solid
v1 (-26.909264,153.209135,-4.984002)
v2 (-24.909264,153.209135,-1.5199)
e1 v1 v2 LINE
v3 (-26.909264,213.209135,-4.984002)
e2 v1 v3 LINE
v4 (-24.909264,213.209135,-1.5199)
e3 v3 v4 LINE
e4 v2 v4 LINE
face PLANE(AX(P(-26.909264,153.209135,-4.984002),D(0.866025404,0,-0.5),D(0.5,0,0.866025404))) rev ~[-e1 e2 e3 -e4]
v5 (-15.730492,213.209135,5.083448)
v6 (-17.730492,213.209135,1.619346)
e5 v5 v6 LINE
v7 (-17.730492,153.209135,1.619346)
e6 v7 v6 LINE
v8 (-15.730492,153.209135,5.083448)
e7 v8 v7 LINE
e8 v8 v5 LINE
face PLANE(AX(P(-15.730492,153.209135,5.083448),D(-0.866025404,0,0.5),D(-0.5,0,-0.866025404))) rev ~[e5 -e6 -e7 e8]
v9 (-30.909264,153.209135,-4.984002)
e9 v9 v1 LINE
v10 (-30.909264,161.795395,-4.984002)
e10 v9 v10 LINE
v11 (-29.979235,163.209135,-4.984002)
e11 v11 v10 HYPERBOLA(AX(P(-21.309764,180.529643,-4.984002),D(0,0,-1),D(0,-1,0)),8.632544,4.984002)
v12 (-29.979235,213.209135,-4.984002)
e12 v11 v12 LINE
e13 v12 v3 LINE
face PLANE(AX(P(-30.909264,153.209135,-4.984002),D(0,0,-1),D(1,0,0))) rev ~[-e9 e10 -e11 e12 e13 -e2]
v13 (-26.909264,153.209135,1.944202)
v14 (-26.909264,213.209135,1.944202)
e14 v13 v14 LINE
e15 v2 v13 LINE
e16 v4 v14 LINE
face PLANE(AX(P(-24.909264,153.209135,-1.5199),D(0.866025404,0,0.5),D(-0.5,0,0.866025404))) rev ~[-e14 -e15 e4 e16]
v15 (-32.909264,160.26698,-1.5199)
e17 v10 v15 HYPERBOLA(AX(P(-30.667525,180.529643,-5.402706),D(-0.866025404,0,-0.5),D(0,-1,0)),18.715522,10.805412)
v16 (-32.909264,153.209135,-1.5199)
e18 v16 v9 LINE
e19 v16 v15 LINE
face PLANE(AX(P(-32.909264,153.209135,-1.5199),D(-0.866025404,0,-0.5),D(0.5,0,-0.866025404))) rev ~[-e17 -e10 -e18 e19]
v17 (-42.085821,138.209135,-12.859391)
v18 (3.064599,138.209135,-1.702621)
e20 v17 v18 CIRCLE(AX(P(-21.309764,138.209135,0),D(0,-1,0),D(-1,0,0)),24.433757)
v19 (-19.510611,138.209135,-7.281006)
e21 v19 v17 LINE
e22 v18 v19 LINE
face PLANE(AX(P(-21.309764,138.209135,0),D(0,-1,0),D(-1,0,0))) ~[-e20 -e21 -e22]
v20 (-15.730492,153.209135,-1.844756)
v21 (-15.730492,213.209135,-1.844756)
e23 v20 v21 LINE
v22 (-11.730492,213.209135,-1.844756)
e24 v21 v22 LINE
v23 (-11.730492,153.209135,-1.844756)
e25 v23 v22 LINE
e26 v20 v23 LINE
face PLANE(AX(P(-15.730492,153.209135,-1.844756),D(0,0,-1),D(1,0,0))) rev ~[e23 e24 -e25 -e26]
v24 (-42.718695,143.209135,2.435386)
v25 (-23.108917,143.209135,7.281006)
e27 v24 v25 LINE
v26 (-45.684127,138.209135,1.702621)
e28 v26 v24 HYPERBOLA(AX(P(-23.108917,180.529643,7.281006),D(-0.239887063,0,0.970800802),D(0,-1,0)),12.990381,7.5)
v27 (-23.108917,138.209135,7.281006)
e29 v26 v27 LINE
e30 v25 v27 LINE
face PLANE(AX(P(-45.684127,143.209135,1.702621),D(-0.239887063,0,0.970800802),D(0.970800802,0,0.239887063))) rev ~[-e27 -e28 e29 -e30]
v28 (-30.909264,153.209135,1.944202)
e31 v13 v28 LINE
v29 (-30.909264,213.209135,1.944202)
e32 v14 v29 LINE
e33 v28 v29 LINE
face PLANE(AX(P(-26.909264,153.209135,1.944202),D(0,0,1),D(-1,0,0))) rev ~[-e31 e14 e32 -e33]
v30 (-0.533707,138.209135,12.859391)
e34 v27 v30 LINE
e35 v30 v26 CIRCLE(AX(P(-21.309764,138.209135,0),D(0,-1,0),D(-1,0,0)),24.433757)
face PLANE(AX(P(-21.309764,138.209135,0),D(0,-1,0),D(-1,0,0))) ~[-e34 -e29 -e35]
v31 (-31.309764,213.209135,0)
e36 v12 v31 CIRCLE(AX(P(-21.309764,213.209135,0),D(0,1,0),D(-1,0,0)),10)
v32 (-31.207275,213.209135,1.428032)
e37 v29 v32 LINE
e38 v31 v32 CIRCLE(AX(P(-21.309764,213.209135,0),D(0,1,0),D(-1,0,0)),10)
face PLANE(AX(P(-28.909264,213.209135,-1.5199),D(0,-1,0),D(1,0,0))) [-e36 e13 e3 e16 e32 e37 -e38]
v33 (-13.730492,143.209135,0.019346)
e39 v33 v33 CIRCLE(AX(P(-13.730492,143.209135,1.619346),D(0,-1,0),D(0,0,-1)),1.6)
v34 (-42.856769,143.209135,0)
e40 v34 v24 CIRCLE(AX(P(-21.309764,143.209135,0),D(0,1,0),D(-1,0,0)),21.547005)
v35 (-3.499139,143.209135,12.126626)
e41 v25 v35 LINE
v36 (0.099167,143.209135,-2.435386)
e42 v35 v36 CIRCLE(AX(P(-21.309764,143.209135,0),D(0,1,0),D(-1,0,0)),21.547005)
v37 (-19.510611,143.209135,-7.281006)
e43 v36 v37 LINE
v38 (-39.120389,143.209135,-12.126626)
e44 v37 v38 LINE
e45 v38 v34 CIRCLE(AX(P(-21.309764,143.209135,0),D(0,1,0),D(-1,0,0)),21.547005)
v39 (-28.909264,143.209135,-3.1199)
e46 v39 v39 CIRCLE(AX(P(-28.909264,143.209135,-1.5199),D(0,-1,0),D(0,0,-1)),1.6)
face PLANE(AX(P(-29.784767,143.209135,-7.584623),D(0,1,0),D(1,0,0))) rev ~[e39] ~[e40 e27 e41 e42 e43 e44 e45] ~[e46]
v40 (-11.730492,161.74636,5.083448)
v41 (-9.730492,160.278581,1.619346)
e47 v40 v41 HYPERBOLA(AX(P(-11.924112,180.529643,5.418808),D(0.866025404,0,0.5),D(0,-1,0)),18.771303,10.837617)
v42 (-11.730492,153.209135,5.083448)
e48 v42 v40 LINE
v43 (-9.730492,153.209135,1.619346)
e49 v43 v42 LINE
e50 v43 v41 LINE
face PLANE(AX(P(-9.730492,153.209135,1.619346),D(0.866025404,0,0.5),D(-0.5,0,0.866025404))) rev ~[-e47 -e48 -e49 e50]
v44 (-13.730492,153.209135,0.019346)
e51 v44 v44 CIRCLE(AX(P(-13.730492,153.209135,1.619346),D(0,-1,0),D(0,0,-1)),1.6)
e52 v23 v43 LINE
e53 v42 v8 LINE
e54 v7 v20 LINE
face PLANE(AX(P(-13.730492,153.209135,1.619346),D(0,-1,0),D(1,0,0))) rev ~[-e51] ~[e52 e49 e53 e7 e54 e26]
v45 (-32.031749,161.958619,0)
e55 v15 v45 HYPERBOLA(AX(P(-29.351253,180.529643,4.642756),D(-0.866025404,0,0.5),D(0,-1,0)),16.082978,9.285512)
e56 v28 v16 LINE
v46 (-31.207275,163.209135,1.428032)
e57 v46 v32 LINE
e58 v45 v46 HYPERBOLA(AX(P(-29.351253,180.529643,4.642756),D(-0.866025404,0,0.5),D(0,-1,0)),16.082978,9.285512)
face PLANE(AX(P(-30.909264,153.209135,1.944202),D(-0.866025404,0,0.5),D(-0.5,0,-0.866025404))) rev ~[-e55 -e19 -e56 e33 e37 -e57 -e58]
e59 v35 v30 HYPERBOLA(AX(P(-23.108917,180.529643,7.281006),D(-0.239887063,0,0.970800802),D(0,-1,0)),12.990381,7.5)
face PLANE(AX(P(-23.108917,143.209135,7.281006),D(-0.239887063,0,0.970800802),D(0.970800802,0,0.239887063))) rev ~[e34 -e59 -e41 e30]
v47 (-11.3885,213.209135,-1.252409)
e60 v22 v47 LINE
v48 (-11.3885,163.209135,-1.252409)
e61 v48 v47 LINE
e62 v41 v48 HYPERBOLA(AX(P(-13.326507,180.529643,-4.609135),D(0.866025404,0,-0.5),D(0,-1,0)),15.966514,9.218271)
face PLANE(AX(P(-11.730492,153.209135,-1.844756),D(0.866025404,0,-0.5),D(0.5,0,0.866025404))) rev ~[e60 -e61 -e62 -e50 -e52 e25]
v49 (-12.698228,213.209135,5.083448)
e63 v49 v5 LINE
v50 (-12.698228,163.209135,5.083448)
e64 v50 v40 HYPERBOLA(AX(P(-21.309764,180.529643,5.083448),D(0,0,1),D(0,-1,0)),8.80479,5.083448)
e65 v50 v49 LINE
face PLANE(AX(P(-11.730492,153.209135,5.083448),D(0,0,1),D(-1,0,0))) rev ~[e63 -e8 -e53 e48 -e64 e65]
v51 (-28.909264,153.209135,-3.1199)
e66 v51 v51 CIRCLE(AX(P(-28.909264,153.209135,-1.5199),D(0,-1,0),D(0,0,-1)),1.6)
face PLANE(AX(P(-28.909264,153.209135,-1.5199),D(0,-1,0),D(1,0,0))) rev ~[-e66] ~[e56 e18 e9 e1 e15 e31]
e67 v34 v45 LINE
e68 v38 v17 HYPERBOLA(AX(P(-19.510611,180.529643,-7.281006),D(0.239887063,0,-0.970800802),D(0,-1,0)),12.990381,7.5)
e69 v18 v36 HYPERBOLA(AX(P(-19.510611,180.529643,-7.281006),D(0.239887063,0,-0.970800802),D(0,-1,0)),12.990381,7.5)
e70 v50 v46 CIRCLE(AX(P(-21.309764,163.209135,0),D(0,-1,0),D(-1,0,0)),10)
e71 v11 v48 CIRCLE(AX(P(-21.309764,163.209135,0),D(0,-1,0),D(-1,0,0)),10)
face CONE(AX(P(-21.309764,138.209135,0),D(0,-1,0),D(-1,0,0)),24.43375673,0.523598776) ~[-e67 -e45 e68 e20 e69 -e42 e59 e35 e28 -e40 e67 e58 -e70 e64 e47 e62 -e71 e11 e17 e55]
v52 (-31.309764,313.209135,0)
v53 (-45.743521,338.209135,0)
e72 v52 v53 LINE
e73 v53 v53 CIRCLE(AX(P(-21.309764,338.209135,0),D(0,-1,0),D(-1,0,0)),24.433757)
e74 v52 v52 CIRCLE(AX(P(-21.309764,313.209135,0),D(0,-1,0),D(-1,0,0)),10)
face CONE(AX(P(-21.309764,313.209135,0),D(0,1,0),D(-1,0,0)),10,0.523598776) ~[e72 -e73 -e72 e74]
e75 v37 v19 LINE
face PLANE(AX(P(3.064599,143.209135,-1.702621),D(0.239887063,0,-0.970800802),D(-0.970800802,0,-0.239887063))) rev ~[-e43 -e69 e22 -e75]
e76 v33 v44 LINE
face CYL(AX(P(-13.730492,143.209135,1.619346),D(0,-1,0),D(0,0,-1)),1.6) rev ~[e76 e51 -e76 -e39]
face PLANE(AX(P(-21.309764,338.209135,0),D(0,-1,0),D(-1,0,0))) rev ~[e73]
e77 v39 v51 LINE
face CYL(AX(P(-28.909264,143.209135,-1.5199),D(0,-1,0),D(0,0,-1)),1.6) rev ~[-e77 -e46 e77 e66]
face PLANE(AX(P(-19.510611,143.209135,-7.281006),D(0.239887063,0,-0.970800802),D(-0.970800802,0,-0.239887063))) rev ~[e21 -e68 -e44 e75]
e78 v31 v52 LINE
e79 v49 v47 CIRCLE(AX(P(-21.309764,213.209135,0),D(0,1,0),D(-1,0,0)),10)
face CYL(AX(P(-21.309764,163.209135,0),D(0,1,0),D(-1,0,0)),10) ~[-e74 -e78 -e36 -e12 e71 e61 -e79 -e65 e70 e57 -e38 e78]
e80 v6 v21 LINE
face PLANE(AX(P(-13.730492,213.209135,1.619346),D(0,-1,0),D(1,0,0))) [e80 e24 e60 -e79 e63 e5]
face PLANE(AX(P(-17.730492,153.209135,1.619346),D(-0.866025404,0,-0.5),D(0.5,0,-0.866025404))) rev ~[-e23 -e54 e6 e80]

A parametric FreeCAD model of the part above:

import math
import FreeCAD as App
import Part
import Sketcher

V = App.Vector
Q = App.Units.Quantity


def add_polygon(sketch, points):
    """Adds a closed chain of lines whose ends are joined by coincident constraints."""
    first, n = sketch.GeometryCount, len(points)
    for a, b in zip(points, points[1:] + points[:1]):
        sketch.addGeometry(Part.LineSegment(App.Vector(*a, 0), App.Vector(*b, 0)), False)
    for i in range(n):
        sketch.addConstraint(Sketcher.Constraint("Coincident", first + i, 2, first + (i + 1) % n, 1))

doc = App.newDocument("Part")
body = doc.addObject("PartDesign::Body", "Body")

# Sketch on XY plane
sketch1 = doc.addObject("Sketcher::SketchObject", "Sketch")
body.addObject(sketch1)
sketch1.AttachmentSupport = (doc.XY_Plane, [""])
sketch1.MapMode = "FlatFace"
add_polygon(sketch1, [(-21, 338), (-46, 338), (-31, 313), (-31, 163), (-46, 138), (-21, 138)])  # lines 0-5
sketch1.addGeometry(Part.LineSegment(V(-21, 338, 0), V(-21, 138, 0)), True)  # axis
sketch1.addConstraint([
    Sketcher.Constraint("Horizontal", 0),
    Sketcher.Constraint("Vertical", 2),
    Sketcher.Constraint("Horizontal", 4),
    Sketcher.Constraint("Vertical", 5),
    Sketcher.Constraint("Vertical", 6),
    Sketcher.Constraint("Coincident", 6, 1, 5, 2),
    Sketcher.Constraint("Horizontal", 3, 2, 6, 2),
    Sketcher.Constraint("Vertical", 0, 2, 3, 2),
    Sketcher.Constraint("Equal", 1, 3),
    Sketcher.Constraint("DistanceY", 2, 2, 2, 1, Q("150 mm")),
    Sketcher.Constraint("DistanceY", 5, 1, 5, 2, Q("200 mm")),
    Sketcher.Constraint("Angle", 1, Q("-60 deg")),
    Sketcher.Constraint("DistanceX", 2, 2, 4, 2, Q("10 mm")),
    Sketcher.Constraint("DistanceX", 0, 2, -1, 1, Q("45.743521 mm")),
    Sketcher.Constraint("DistanceY", -1, 1, 0, 2, Q("338.209135 mm")),
])
revolution = doc.addObject("PartDesign::Revolution", "Revolution")
body.addObject(revolution)
revolution.Profile = sketch1
revolution.ReferenceAxis = (sketch1, ["Axis0"])
revolution.Angle = 360

# Sketch on XZ plane
sketch2 = doc.addObject("Sketcher::SketchObject", "Sketch001")
body.addObject(sketch2)
sketch2.AttachmentSupport = (doc.XZ_Plane, [""])
sketch2.MapMode = "FlatFace"
sketch2.AttachmentOffset = App.Placement(V(0, 0, -143.209135), App.Rotation())
sketch2.addGeometry([
    Part.ArcOfCircle(Part.Circle(V(-21.3, 0, 0), V(0, 0, 1), 24.4), math.radians(-4), math.radians(0)),  # 0
    Part.LineSegment(V(3.1, -1.7, 0), V(-19.5, -7.3, 0)),  # 1
    Part.LineSegment(V(-19.5, -7.3, 0), V(-42.1, -12.9, 0)),  # 2
    Part.ArcOfCircle(Part.Circle(V(-21.3, 0, 0), V(0, 0, 1), 24.4), math.radians(176), math.radians(212)),  # 3
    Part.LineSegment(V(-45.7, 1.7, 0), V(-23.1, 7.3, 0)),  # 4
    Part.LineSegment(V(-23.1, 7.3, 0), V(-0.5, 12.9, 0)),  # 5
    Part.ArcOfCircle(Part.Circle(V(-21.3, 0, 0), V(0, 0, 1), 24.4), math.radians(0), math.radians(32)),  # 6
], False)
sketch2.addConstraint([
    Sketcher.Constraint("Coincident", 0, 1, 1, 1),
    Sketcher.Constraint("Coincident", 1, 2, 2, 1),
    Sketcher.Constraint("Coincident", 2, 2, 3, 2),
    Sketcher.Constraint("Coincident", 3, 1, 4, 1),
    Sketcher.Constraint("Coincident", 4, 2, 5, 1),
    Sketcher.Constraint("Coincident", 5, 2, 6, 2),
    Sketcher.Constraint("Tangent", 6, 1, 0, 2),
    Sketcher.Constraint("Coincident", 3, 3, 0, 3),
    Sketcher.Constraint("Equal", 0, 3),
    Sketcher.Constraint("Equal", 3, 6),
    Sketcher.Constraint("PointOnObject", 0, 3, -1),
    Sketcher.Constraint("PointOnObject", 6, 1, -1),
    Sketcher.Constraint("Parallel", 1, 2),
    Sketcher.Constraint("Parallel", 2, 4),
    Sketcher.Constraint("Parallel", 4, 5),
    Sketcher.Constraint("Equal", 1, 2),
    Sketcher.Constraint("Equal", 2, 4),
    Sketcher.Constraint("Equal", 4, 5),
    Sketcher.Constraint("Radius", 0, Q("24.433756 mm")),
    Sketcher.Constraint("DistanceX", -1, 1, 0, 1, Q("3.064599 mm")),
    Sketcher.Constraint("DistanceX", 5, 2, 6, 1, Q("3.6577 mm")),
    Sketcher.Constraint("DistanceY", 0, 1, -1, 1, Q("1.702621 mm")),
])
pocket1 = doc.addObject("PartDesign::Pocket", "Pocket")
body.addObject(pocket1)
pocket1.Profile = sketch2
pocket1.Length = 5
pocket1.Reversed = True

# Sketch on XZ plane
sketch3 = doc.addObject("Sketcher::SketchObject", "Sketch002")
body.addObject(sketch3)
sketch3.AttachmentSupport = (doc.XZ_Plane, [""])
sketch3.MapMode = "FlatFace"
sketch3.AttachmentOffset = App.Placement(V(0, 0, -143.209135), App.Rotation())
sketch3.addGeometry([
    Part.Circle(V(-28.9, -1.5, 0), V(0, 0, 1), 1.6),
    Part.Circle(V(-13.7, 1.6, 0), V(0, 0, 1), 1.6),
], False)
sketch3.addConstraint([
    Sketcher.Constraint("Equal", 0, 1),
    Sketcher.Constraint("Diameter", 0, Q("3.2 mm")),
    Sketcher.Constraint("DistanceY", 0, 3, -1, 1, Q("1.5199 mm")),
    Sketcher.Constraint("DistanceX", 1, 3, -1, 1, Q("13.730492 mm")),
    Sketcher.Constraint("DistanceX", 0, 3, -1, 1, Q("28.909264 mm")),
    Sketcher.Constraint("DistanceY", -1, 1, 1, 3, Q("1.619346 mm")),
])
pocket2 = doc.addObject("PartDesign::Pocket", "Pocket001")
body.addObject(pocket2)
pocket2.Profile = sketch3
pocket2.Length = 10

# Sketch on XZ plane
sketch4 = doc.addObject("Sketcher::SketchObject", "Sketch003")
body.addObject(sketch4)
sketch4.AttachmentSupport = (doc.XZ_Plane, [""])
sketch4.MapMode = "FlatFace"
sketch4.AttachmentOffset = App.Placement(V(0, 0, -153.209135), App.Rotation())
add_polygon(sketch4, [(-24.9, -1.5), (-26.9, 1.9), (-30.9, 1.9), (-32.9, -1.5), (-30.9, -5), (-26.9, -5)])  # lines 0-5
add_polygon(sketch4, [(-9.7, 1.6), (-11.7, 5.1), (-15.7, 5.1), (-17.7, 1.6), (-15.7, -1.8), (-11.7, -1.8)])  # lines 6-11
sketch4.addConstraint([
    Sketcher.Constraint("Horizontal", 1),
    Sketcher.Constraint("Horizontal", 4),
    Sketcher.Constraint("Horizontal", 7),
    Sketcher.Constraint("Horizontal", 10),
    Sketcher.Constraint("Parallel", 0, 3),
    Sketcher.Constraint("Parallel", 2, 5),
    Sketcher.Constraint("Parallel", 3, 6),
    Sketcher.Constraint("Parallel", 5, 8),
    Sketcher.Constraint("Parallel", 6, 9),
    Sketcher.Constraint("Parallel", 8, 11),
    Sketcher.Constraint("Horizontal", 2, 2, 5, 2),
    Sketcher.Constraint("Horizontal", 8, 2, 11, 2),
    Sketcher.Constraint("Vertical", 1, 2, 3, 2),
    Sketcher.Constraint("Vertical", 0, 2, 4, 2),
    Sketcher.Constraint("Vertical", 7, 2, 9, 2),
    Sketcher.Constraint("Equal", 4, 7),
    Sketcher.Constraint("Equal", 5, 6),
    Sketcher.Constraint("DistanceX", 1, 2, 1, 1, Q("4 mm")),
    Sketcher.Constraint("Angle", 0, Q("120 deg")),
    Sketcher.Constraint("Distance", 0, Q("4 mm")),
    Sketcher.Constraint("DistanceY", 3, 2, -1, 1, Q("4.984002 mm")),
    Sketcher.Constraint("DistanceX", 6, 2, -1, 1, Q("11.730492 mm")),
    Sketcher.Constraint("DistanceY", 4, 2, 6, 2, Q("10.067449 mm")),
    Sketcher.Constraint("DistanceX", 0, 2, -1, 1, Q("26.909264 mm")),
])
pocket3 = doc.addObject("PartDesign::Pocket", "Pocket002")
body.addObject(pocket3)
pocket3.Profile = sketch4
pocket3.Length = 60

doc.recompute()
